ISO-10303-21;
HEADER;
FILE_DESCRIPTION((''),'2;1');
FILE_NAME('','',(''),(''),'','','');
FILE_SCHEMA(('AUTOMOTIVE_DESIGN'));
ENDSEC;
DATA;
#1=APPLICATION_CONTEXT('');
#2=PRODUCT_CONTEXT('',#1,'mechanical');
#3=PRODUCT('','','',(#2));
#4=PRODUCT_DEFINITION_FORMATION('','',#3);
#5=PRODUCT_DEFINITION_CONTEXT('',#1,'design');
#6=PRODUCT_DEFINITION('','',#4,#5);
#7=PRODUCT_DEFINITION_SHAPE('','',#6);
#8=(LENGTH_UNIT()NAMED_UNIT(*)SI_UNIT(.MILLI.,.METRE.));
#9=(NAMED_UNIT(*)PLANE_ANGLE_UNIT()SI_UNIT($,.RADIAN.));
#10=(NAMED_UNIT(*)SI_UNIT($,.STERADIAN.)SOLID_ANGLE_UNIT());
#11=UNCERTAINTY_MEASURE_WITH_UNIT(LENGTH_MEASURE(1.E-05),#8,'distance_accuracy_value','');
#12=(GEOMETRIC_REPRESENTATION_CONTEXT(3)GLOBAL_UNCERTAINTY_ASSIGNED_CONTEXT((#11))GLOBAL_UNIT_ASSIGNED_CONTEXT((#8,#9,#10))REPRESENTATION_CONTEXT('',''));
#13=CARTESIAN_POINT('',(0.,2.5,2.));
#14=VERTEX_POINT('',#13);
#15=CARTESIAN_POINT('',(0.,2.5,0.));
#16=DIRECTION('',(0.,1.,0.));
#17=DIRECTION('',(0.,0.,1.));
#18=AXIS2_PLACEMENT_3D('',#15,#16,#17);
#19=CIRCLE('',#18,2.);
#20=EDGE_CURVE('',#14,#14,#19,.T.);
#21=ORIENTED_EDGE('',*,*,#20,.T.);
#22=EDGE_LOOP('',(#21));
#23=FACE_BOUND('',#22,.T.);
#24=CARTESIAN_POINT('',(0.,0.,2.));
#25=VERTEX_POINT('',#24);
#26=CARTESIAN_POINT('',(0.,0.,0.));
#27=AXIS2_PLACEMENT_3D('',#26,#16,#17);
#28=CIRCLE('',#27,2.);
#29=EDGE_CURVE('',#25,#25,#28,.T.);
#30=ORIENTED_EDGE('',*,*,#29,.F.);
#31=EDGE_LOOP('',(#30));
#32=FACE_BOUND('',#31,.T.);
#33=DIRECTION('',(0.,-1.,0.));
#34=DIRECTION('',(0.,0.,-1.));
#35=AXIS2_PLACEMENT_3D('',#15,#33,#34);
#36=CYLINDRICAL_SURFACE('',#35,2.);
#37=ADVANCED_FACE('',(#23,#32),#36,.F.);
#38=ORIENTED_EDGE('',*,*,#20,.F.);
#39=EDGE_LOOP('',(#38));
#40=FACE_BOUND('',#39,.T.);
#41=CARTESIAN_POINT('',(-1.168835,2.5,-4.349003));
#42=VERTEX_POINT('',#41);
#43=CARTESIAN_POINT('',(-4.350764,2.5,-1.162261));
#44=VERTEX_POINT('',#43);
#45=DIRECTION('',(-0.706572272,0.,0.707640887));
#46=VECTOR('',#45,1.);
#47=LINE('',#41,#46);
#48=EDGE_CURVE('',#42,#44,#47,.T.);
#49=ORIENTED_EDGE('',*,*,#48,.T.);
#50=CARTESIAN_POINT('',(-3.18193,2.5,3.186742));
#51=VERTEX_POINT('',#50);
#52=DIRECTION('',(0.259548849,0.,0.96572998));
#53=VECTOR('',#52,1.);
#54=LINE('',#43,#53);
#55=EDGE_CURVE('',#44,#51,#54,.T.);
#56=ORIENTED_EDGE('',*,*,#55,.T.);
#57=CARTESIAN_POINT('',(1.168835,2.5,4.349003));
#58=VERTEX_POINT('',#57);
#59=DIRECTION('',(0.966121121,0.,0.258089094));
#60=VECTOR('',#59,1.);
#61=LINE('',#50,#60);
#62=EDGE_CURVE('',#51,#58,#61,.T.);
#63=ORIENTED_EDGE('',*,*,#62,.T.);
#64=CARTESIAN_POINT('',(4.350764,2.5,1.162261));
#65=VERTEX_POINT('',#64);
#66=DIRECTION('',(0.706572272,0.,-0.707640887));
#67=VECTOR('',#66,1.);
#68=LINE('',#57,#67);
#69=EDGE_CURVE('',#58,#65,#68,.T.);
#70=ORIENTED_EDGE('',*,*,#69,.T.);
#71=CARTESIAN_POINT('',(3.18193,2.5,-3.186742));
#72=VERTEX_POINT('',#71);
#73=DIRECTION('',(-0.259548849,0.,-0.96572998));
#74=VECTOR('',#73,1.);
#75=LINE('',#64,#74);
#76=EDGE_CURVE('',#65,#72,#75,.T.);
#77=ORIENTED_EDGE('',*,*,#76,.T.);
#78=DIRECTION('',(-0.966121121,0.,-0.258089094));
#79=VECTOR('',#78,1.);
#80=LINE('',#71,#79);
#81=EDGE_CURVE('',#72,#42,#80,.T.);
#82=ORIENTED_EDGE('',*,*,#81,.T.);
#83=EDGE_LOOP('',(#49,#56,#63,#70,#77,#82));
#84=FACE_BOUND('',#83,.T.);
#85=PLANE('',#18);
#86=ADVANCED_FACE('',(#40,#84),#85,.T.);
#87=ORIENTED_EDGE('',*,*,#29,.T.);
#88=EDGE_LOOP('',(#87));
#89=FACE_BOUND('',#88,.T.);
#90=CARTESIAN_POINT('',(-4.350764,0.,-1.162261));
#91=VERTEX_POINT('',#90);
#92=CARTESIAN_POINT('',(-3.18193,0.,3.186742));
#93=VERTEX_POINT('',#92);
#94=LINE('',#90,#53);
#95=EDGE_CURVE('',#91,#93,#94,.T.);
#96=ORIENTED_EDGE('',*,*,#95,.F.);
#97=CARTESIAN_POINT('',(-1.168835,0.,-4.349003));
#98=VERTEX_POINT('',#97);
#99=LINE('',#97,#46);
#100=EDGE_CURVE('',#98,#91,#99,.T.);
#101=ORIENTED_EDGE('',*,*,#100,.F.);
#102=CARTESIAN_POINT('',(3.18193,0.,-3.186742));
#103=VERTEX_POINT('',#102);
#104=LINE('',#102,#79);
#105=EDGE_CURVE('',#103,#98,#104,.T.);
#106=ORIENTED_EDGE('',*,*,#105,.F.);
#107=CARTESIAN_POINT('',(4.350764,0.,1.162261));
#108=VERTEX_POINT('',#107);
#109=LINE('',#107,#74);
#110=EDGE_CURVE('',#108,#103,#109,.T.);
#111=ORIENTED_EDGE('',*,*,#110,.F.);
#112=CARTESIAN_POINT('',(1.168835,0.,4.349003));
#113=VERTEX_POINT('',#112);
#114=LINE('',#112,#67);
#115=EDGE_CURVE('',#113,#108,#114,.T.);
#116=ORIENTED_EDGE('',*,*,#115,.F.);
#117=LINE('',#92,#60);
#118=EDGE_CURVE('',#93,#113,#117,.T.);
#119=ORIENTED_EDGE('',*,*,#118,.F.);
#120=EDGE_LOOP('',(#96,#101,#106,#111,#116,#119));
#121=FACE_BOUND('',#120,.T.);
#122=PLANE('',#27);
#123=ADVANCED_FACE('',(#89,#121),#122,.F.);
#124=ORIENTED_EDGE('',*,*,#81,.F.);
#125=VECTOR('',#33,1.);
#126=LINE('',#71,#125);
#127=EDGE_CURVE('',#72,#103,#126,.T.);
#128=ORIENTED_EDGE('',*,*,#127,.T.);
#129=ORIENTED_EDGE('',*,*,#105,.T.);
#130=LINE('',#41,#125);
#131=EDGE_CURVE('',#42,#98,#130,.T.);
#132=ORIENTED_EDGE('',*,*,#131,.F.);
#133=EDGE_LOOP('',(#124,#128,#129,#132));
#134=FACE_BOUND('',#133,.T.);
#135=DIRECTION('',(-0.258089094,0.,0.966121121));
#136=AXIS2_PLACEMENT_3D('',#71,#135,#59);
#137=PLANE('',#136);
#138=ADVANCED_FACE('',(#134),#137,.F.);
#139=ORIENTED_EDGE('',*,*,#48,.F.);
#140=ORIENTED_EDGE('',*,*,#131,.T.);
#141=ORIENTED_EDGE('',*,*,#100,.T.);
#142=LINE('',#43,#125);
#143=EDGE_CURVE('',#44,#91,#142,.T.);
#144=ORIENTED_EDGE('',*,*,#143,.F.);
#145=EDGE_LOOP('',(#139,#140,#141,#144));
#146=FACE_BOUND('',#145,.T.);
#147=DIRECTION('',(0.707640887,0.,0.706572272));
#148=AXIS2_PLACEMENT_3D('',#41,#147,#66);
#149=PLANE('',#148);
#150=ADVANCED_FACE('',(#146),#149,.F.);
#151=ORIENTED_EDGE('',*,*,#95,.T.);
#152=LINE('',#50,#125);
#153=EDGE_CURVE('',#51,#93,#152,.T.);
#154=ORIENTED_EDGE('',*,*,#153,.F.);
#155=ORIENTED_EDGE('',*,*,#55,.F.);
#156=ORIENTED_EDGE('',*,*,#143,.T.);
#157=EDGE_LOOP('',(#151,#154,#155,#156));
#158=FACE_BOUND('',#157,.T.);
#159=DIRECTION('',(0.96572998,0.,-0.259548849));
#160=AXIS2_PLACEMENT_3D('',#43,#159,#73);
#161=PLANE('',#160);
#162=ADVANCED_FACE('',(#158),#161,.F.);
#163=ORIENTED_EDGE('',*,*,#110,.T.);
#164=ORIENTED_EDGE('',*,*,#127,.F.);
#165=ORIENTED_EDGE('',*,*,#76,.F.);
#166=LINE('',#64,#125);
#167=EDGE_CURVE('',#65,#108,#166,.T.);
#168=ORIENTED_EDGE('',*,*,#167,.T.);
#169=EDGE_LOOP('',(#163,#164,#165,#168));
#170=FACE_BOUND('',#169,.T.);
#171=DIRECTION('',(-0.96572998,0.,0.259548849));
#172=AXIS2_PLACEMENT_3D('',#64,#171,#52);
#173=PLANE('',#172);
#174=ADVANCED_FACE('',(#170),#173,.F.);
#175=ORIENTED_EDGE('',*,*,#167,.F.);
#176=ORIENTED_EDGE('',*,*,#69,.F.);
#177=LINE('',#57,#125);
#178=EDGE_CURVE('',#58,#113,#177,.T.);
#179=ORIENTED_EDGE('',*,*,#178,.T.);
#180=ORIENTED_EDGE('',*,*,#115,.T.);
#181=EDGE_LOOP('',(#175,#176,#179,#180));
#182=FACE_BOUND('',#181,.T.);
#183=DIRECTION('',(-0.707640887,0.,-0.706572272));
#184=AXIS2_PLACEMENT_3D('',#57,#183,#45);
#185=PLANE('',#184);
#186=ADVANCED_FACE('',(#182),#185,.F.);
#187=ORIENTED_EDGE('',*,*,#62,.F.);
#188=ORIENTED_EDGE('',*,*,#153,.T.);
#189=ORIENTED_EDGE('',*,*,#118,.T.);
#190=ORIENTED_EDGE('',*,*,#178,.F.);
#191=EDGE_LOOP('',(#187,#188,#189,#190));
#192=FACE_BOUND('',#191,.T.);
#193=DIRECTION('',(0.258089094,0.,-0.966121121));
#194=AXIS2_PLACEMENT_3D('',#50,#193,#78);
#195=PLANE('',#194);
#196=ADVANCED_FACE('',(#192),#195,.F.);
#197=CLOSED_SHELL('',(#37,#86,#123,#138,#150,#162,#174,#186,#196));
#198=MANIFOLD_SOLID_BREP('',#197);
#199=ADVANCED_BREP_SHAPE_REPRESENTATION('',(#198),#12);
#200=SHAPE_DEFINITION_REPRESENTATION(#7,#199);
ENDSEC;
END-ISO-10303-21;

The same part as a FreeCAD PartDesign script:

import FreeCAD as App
import Part
import Sketcher

V = App.Vector


def add_polygon(sketch, points):
    """Adds a closed chain of lines whose ends are joined by coincident constraints."""
    first, n = sketch.GeometryCount, len(points)
    for a, b in zip(points, points[1:] + points[:1]):
        sketch.addGeometry(Part.LineSegment(App.Vector(*a, 0), App.Vector(*b, 0)), False)
    for i in range(n):
        sketch.addConstraint(Sketcher.Constraint("Coincident", first + i, 2, first + (i + 1) % n, 1))

doc = App.newDocument("Part")
body = doc.addObject("PartDesign::Body", "Body")

# Sketch on XZ plane
sketch1 = doc.addObject("Sketcher::SketchObject", "Sketch")
body.addObject(sketch1)
sketch1.AttachmentSupport = (doc.XZ_Plane, [""])
sketch1.MapMode = "FlatFace"
add_polygon(sketch1, [(-4.350764, -1.162261), (-3.18193, 3.186742), (1.168835, 4.349003), (4.350764, 1.162261), (3.18193, -3.186742), (-1.168835, -4.349003)])  # lines 0-5
sketch1.addGeometry(Part.Circle(V(0, 0, 0), V(0, 0, 1), 2), False)  # 6
sketch1.addConstraint(Sketcher.Constraint("Coincident", 6, 3, -1, 1))
sketch1.addConstraint(Sketcher.Constraint("Symmetric", 0, 2, 3, 2, -1, 1))
sketch1.addConstraint(Sketcher.Constraint("Symmetric", 1, 2, 4, 2, -1, 1))
sketch1.addConstraint(Sketcher.Constraint("Symmetric", 2, 2, 5, 2, -1, 1))
sketch1.addConstraint(Sketcher.Constraint("Equal", 0, 1))
sketch1.addConstraint(Sketcher.Constraint("Equal", 1, 2))
sketch1.addConstraint(Sketcher.Constraint("Diameter", 6, 4.0))
sketch1.addConstraint(Sketcher.Constraint("DistanceX", 4, 2, 2, 2, 5.519599))
sketch1.addConstraint(Sketcher.Constraint("DistanceX", 0, 2, -1, 1, 3.18193))
sketch1.addConstraint(Sketcher.Constraint("DistanceY", -1, 1, 0, 2, 3.186742))
sketch1.addConstraint(Sketcher.Constraint("DistanceY", -1, 1, 2, 2, 1.162261))
pad1 = doc.addObject("PartDesign::Pad", "Pad")
body.addObject(pad1)
pad1.Profile = sketch1
pad1.Length = 2.5
pad1.Reversed = True

doc.recompute()
